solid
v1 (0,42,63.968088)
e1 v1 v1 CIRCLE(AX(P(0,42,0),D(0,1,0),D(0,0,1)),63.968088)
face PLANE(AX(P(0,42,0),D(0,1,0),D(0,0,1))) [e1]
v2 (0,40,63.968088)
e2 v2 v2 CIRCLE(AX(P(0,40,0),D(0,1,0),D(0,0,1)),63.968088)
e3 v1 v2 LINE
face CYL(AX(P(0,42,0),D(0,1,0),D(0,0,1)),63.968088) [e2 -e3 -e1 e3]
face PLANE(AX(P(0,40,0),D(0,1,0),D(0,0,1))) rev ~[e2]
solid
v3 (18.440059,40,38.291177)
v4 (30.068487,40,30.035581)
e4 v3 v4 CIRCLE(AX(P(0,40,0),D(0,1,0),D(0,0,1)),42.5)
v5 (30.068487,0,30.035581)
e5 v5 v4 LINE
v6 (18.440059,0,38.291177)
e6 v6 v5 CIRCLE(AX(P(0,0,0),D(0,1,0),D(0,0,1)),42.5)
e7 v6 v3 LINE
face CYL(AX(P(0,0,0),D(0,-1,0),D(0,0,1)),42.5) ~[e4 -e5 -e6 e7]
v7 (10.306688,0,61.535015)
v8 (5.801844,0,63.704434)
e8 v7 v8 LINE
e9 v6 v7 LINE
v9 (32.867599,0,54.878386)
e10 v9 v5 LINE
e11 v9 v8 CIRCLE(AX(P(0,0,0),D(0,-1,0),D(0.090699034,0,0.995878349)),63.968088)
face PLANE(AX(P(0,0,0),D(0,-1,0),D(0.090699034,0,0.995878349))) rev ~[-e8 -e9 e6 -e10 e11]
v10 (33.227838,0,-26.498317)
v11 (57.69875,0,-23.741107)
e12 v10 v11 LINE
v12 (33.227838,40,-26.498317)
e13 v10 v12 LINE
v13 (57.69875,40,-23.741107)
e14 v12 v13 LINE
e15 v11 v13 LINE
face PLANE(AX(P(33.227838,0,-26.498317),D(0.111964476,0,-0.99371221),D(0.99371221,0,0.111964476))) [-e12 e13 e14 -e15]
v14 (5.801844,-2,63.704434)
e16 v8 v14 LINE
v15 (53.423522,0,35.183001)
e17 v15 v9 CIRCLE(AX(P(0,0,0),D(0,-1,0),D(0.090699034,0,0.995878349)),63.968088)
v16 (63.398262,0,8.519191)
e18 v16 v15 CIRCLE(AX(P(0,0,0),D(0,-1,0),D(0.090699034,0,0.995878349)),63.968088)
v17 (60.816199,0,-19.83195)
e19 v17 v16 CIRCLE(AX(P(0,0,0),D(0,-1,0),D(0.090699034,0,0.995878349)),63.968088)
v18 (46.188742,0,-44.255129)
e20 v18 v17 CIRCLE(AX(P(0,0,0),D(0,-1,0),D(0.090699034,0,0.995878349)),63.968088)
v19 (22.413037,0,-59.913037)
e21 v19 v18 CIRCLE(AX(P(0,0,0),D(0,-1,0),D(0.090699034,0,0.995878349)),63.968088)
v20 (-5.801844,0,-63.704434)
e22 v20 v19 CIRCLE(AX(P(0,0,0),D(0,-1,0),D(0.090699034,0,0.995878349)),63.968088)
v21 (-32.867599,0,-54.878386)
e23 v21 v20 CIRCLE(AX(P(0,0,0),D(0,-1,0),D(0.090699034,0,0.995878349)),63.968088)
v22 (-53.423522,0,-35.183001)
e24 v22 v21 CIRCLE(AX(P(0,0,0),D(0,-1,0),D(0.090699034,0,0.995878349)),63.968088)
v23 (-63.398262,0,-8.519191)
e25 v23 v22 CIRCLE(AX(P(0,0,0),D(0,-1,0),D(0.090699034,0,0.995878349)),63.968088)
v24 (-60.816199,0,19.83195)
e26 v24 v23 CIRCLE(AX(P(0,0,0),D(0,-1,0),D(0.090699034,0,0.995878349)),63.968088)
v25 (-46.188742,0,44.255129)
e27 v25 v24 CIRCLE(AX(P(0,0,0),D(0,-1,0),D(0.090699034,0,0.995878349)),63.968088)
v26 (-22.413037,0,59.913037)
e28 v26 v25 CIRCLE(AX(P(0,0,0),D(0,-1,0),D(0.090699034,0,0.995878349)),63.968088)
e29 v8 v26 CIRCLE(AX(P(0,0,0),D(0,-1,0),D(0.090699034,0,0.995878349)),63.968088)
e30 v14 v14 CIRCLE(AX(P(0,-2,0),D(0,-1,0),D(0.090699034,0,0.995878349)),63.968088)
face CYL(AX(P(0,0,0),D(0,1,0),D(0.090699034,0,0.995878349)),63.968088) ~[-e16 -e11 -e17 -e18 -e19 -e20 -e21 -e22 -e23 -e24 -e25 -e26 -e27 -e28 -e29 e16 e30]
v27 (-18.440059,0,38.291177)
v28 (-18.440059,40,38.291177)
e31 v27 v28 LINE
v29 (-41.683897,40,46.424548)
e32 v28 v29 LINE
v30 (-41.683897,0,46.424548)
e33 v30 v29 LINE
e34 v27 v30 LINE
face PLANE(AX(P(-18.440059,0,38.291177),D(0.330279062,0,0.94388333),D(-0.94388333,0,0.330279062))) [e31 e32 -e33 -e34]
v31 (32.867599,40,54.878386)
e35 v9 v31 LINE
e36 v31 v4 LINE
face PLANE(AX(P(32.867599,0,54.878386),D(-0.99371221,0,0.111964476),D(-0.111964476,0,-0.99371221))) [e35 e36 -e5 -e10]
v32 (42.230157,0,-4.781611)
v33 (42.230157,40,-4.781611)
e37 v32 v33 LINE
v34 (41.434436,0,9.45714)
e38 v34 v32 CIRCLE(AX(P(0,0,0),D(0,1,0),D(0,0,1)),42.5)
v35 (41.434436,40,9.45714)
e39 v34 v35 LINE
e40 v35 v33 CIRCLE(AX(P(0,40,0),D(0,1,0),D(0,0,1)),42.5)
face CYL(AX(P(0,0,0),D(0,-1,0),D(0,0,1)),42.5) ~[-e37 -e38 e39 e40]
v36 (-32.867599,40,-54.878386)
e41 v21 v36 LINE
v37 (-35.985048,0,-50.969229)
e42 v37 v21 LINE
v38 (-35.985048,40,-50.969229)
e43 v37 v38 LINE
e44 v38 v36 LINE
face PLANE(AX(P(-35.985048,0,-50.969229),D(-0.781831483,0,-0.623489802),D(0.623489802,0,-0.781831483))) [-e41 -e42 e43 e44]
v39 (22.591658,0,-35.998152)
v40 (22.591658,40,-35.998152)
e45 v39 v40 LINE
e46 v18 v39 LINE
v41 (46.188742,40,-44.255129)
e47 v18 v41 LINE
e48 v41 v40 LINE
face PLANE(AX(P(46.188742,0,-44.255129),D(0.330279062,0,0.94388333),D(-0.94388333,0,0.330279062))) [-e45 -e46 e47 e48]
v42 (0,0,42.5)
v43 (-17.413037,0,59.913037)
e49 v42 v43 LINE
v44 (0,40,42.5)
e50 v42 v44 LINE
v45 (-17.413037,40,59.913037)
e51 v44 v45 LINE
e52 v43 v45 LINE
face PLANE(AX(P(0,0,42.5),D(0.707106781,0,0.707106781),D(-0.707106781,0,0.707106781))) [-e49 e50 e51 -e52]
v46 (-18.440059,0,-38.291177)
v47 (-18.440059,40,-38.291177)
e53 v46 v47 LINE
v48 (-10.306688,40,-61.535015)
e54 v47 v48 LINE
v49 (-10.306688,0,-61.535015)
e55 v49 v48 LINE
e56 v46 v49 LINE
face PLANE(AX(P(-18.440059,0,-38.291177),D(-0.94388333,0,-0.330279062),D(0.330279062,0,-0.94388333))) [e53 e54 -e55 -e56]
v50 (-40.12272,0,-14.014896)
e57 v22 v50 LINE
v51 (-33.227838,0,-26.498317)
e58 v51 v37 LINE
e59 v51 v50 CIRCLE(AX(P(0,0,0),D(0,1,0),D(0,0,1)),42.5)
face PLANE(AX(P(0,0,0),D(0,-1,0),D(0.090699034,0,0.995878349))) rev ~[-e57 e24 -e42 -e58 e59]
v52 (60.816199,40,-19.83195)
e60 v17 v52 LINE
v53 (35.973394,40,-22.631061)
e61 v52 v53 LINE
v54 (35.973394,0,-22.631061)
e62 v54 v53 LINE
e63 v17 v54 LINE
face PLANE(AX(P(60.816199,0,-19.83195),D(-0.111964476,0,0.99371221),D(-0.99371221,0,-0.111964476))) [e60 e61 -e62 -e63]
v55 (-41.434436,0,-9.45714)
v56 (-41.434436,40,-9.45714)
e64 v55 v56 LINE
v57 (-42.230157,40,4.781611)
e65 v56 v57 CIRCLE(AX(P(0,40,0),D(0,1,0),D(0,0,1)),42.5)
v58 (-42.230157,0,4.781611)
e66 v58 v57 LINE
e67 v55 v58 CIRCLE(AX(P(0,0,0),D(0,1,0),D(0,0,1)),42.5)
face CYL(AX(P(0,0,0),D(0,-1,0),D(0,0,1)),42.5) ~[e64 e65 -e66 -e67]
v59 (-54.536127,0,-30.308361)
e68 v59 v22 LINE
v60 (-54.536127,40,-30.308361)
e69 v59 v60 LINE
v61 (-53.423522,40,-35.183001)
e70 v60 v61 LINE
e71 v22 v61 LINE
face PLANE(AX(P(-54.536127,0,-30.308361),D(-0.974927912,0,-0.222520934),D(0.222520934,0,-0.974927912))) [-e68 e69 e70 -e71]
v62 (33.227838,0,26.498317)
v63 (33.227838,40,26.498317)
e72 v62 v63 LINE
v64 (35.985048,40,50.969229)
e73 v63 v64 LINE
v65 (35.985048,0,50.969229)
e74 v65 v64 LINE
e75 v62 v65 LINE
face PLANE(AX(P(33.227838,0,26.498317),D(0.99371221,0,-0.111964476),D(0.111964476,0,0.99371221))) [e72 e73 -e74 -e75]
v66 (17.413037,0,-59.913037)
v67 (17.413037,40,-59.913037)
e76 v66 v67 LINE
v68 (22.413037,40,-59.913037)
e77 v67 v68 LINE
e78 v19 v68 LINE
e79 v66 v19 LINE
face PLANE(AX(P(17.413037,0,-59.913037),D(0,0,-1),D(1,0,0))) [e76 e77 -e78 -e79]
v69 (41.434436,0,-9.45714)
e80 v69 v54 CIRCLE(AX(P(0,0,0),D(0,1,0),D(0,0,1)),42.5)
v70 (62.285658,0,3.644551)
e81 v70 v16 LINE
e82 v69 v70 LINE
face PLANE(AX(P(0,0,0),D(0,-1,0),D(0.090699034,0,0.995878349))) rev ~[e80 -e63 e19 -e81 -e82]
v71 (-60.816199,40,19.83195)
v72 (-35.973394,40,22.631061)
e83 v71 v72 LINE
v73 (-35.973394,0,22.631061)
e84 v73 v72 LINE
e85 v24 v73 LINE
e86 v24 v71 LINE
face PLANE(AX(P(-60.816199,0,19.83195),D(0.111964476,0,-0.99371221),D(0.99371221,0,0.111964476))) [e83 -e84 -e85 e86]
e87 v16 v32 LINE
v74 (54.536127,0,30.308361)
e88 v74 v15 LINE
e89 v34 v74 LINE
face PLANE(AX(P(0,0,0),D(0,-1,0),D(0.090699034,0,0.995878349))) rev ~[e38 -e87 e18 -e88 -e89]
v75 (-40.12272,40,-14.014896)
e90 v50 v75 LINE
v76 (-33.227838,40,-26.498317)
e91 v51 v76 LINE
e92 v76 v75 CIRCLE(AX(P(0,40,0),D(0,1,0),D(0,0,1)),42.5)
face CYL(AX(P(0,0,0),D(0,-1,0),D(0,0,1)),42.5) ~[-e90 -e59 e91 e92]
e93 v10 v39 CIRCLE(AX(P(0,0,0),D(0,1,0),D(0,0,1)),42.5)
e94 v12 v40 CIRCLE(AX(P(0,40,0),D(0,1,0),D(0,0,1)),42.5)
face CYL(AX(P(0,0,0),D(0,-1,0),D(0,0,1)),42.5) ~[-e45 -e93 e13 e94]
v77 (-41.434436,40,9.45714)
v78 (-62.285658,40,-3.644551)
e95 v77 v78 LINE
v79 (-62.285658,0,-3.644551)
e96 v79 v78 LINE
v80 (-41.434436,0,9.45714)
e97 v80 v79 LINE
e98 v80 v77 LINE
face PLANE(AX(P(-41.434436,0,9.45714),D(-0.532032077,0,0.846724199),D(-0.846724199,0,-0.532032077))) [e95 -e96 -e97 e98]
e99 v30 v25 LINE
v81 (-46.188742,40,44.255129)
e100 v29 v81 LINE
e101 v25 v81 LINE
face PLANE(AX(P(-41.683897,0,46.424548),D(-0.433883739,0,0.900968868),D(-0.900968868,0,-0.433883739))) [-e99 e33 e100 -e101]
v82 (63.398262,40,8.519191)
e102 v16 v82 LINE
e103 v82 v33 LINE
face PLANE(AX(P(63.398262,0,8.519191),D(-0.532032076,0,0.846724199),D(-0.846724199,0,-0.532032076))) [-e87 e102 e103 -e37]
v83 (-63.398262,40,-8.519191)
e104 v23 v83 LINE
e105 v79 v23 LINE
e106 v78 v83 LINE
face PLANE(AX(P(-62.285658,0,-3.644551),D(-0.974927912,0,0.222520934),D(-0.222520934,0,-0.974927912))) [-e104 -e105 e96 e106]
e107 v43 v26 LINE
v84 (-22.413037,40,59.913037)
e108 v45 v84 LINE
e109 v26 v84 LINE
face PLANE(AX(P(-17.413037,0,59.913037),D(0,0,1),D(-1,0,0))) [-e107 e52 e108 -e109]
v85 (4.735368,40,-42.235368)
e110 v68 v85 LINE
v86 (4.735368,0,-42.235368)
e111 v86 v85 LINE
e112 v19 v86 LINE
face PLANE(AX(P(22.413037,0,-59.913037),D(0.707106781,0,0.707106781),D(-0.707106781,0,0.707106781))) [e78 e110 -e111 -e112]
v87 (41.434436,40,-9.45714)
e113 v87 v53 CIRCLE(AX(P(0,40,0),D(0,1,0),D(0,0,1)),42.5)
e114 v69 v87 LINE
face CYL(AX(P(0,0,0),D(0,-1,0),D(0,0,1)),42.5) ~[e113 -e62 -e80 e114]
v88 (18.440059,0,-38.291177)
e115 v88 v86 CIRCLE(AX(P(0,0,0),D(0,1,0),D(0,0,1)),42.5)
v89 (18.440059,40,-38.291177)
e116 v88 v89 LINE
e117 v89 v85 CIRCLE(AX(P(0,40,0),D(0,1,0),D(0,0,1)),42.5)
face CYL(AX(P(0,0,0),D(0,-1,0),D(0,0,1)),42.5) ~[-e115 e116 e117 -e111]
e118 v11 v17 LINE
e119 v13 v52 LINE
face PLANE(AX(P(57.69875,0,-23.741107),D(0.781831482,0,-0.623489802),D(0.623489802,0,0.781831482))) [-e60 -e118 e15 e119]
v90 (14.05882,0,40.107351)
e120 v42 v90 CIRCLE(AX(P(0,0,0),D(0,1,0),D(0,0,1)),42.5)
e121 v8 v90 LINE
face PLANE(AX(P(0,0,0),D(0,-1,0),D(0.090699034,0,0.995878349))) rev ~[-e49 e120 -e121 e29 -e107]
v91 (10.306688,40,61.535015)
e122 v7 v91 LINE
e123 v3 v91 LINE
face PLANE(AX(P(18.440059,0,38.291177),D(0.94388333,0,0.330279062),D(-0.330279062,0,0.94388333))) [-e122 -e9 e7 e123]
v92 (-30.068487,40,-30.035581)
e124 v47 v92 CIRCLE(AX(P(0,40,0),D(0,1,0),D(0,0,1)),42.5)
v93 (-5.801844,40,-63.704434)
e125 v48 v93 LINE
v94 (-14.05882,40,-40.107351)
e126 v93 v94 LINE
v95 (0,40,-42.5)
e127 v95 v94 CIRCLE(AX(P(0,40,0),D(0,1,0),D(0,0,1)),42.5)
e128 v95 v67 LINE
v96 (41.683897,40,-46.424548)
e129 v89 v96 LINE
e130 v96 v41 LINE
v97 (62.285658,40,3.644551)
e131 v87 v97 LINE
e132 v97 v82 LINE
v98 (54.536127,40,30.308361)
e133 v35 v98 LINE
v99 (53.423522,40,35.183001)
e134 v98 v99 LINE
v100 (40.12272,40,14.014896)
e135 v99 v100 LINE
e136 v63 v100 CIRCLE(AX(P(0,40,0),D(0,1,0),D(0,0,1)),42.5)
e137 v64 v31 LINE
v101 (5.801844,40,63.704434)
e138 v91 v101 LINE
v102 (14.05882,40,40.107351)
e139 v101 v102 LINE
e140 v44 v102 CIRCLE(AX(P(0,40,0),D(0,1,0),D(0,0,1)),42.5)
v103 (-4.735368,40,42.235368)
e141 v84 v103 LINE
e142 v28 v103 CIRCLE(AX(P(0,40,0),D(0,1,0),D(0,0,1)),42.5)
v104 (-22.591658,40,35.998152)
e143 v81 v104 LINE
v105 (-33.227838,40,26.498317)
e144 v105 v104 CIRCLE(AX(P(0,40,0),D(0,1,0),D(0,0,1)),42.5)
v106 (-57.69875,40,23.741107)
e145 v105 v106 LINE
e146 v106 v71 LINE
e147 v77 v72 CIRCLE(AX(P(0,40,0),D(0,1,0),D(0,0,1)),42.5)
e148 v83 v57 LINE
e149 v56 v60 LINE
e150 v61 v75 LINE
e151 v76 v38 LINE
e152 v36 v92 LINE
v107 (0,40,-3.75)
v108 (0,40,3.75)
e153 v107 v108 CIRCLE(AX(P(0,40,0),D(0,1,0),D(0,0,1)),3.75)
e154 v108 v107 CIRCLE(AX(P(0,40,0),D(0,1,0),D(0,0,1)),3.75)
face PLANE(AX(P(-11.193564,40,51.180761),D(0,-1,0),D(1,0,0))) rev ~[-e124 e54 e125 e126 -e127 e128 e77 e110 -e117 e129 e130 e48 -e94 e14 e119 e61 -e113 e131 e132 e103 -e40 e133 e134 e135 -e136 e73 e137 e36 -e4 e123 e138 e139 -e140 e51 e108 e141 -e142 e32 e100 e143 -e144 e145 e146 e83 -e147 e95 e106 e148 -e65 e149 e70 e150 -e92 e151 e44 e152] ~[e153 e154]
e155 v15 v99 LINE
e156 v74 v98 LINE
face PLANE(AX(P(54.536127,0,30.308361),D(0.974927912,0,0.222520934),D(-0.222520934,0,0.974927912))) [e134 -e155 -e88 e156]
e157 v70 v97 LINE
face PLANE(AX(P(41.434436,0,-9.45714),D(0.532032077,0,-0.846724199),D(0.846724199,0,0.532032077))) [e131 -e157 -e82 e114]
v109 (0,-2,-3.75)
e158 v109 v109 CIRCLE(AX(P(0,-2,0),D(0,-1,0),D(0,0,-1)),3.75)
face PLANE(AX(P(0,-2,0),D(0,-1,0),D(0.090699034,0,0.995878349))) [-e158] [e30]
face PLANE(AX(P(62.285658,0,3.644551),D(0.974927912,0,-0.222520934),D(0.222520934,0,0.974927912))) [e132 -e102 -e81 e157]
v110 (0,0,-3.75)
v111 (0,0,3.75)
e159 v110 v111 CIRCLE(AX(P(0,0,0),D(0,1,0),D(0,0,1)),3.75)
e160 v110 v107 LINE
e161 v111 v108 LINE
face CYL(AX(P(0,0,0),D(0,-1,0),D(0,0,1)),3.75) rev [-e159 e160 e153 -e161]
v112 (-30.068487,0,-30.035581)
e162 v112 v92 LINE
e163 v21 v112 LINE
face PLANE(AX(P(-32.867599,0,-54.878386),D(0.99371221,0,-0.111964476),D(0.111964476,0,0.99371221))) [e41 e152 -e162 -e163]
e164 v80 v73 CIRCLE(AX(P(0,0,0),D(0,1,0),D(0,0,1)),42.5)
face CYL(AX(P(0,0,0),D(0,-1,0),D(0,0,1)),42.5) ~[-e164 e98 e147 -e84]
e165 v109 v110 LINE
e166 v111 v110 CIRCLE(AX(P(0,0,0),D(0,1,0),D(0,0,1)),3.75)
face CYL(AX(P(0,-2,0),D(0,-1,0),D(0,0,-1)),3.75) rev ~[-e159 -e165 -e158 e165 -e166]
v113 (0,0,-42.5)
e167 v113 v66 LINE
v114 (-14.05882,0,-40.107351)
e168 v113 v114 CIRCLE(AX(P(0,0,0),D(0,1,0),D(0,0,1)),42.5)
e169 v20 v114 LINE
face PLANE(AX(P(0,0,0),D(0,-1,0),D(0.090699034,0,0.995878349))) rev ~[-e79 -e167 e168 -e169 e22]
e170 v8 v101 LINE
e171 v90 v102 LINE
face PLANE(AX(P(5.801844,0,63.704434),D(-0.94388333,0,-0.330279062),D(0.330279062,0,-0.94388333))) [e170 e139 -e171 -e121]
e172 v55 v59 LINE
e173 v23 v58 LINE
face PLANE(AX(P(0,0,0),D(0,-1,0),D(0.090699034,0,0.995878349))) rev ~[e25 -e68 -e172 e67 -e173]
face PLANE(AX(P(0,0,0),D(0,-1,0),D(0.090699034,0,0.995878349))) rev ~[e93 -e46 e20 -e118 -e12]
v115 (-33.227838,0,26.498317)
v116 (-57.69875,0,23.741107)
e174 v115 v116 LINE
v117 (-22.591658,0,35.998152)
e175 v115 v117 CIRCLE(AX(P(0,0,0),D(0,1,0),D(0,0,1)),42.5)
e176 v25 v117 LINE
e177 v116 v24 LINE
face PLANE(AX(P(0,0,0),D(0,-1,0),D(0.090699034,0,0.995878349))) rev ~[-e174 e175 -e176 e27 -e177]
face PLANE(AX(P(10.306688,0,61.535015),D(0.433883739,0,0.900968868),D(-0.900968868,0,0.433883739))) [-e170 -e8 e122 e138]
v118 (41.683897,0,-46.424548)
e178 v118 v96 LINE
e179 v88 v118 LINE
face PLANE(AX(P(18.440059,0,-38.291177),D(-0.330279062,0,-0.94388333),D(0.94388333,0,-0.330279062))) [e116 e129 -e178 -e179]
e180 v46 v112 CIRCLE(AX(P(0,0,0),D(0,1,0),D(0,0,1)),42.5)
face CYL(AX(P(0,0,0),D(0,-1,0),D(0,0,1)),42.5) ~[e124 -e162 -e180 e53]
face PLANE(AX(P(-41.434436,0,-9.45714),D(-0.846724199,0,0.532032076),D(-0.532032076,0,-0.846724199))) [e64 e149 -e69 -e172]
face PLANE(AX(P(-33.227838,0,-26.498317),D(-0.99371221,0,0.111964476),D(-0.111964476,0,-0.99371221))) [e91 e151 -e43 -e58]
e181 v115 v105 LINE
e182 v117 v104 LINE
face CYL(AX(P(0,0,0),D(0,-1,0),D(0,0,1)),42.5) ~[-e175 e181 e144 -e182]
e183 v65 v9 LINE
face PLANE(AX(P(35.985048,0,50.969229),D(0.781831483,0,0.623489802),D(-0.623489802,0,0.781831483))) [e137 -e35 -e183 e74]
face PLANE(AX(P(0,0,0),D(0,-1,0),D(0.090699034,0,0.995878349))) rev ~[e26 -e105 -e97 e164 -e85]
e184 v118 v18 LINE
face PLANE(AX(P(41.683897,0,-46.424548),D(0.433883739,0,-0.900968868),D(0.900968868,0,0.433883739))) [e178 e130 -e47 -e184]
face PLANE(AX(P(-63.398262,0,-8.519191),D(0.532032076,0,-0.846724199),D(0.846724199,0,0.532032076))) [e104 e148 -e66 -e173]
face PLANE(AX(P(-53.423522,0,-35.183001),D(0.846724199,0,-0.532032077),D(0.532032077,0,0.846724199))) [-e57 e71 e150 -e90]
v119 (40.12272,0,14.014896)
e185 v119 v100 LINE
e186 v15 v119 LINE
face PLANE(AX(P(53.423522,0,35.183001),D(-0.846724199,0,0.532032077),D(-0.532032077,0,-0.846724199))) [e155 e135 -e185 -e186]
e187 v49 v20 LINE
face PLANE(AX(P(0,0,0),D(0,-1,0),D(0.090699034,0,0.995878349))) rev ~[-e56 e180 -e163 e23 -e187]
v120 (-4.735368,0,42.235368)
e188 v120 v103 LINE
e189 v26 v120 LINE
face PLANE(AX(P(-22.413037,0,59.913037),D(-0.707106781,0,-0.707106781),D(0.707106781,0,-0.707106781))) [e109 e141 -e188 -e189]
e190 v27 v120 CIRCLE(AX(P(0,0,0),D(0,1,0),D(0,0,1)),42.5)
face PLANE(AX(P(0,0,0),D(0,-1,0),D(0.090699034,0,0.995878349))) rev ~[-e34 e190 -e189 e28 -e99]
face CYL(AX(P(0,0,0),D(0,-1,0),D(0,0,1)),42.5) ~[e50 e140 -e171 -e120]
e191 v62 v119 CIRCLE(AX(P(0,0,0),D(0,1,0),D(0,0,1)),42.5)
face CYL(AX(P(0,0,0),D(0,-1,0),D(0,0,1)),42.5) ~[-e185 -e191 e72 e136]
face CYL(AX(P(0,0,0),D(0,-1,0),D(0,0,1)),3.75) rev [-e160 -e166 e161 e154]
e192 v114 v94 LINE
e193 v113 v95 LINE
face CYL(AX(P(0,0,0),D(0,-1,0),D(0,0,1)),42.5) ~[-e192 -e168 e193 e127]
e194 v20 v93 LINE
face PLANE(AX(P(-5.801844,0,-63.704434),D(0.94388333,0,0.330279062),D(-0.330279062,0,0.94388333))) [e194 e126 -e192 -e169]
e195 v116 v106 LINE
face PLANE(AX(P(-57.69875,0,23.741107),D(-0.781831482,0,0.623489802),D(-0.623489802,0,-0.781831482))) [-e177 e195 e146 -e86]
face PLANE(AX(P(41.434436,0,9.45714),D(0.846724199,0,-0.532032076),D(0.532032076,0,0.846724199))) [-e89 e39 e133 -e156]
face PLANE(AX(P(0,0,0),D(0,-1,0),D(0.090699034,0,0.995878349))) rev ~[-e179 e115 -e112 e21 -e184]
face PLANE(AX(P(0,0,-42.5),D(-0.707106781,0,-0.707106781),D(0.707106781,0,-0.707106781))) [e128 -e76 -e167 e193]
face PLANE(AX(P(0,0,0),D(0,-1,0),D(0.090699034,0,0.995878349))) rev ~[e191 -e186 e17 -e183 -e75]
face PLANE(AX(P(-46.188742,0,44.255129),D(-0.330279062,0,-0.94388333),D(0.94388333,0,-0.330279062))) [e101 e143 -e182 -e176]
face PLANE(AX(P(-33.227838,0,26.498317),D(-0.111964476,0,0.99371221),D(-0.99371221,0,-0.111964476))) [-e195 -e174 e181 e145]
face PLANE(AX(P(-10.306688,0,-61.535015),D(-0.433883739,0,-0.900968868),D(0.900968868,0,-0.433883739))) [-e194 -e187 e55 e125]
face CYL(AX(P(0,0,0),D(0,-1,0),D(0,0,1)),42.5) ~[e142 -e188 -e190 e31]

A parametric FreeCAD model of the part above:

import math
import FreeCAD as App
import Part
import Sketcher
from FreeCAD import Vector

doc = App.newDocument("Part")
body = doc.addObject("PartDesign::Body", "Body")

# Sketch on XZ plane
sketch1 = body.newObject("Sketcher::SketchObject", "Sketch")
sketch1.AttachmentSupport = (doc.getObject("XZ_Plane"), [""])
sketch1.MapMode = "FlatFace"
sketch1.addGeometry(Part.Circle(Vector(0, 0, 0), Vector(0, 0, 1), 42.5), False)
sketch1.addGeometry(Part.Circle(Vector(0, 0, 0), Vector(0, 0, 1), 3.8), False)
sketch1.addConstraint(Sketcher.Constraint("Coincident", 0, 3, -1, 1))
sketch1.addConstraint(Sketcher.Constraint("Coincident", 1, 3, -1, 1))
sketch1.addConstraint(Sketcher.Constraint("Diameter", 0, 85.0))
sketch1.addConstraint(Sketcher.Constraint("Diameter", 1, 7.5))
pad1 = body.newObject("PartDesign::Pad", "Pad")
pad1.Profile = sketch1
pad1.Length = 40
pad1.Reversed = True

# Sketch on XZ plane
sketch2 = body.newObject("Sketcher::SketchObject", "Sketch001")
sketch2.AttachmentSupport = (doc.getObject("XZ_Plane"), [""])
sketch2.MapMode = "FlatFace"
sketch2.addGeometry(Part.LineSegment(Vector(0, -42.5, 0), Vector(17.413037, -59.913037, 0)), False)
sketch2.addGeometry(Part.LineSegment(Vector(17.413037, -59.913037, 0), Vector(22.413037, -59.913037, 0)), False)
sketch2.addGeometry(Part.LineSegment(Vector(22.413037, -59.913037, 0), Vector(4.735368, -42.235368, 0)), False)
sketch2.addGeometry(Part.ArcOfCircle(Part.Circle(Vector(0, 0, 0), Vector(0, 0, 1), 42.5), math.radians(-90), math.radians(-83.602797)), False)
sketch2.addGeometry(Part.LineSegment(Vector(-18.440059, -38.291177, 0), Vector(-10.306688, -61.535015, 0)), False)
sketch2.addGeometry(Part.LineSegment(Vector(-10.306688, -61.535015, 0), Vector(-5.801844, -63.704434, 0)), False)
sketch2.addGeometry(Part.LineSegment(Vector(-5.801844, -63.704434, 0), Vector(-14.05882, -40.107351, 0)), False)
sketch2.addGeometry(Part.ArcOfCircle(Part.Circle(Vector(0, 0, 0), Vector(0, 0, 1), 42.5), math.radians(-115.714286), math.radians(-109.317083)), False)
sketch2.addGeometry(Part.LineSegment(Vector(-33.227838, -26.498317, 0), Vector(-35.985048, -50.969229, 0)), False)
sketch2.addGeometry(Part.LineSegment(Vector(-35.985048, -50.969229, 0), Vector(-32.867599, -54.878386, 0)), False)
sketch2.addGeometry(Part.LineSegment(Vector(-32.867599, -54.878386, 0), Vector(-30.068487, -30.035581, 0)), False)
sketch2.addGeometry(Part.ArcOfCircle(Part.Circle(Vector(0, 0, 0), Vector(0, 0, 1), 42.5), math.radians(-141.428571), math.radians(-135.031369)), False)
sketch2.addGeometry(Part.LineSegment(Vector(-41.434436, -9.45714, 0), Vector(-54.536127, -30.308361, 0)), False)
sketch2.addGeometry(Part.LineSegment(Vector(-54.536127, -30.308361, 0), Vector(-53.423522, -35.183001, 0)), False)
sketch2.addGeometry(Part.LineSegment(Vector(-53.423522, -35.183001, 0), Vector(-40.12272, -14.014896, 0)), False)
sketch2.addGeometry(Part.ArcOfCircle(Part.Circle(Vector(0, 0, 0), Vector(0, 0, 1), 42.5), math.radians(-167.142857), math.radians(-160.745654)), False)
sketch2.addGeometry(Part.LineSegment(Vector(-41.434436, 9.45714, 0), Vector(-62.285658, -3.644551, 0)), False)
sketch2.addGeometry(Part.LineSegment(Vector(-62.285658, -3.644551, 0), Vector(-63.398262, -8.519191, 0)), False)
sketch2.addGeometry(Part.LineSegment(Vector(-63.398262, -8.519191, 0), Vector(-42.230157, 4.781611, 0)), False)
sketch2.addGeometry(Part.ArcOfCircle(Part.Circle(Vector(0, 0, 0), Vector(0, 0, 1), 42.5), math.radians(167.142857), math.radians(173.54006)), False)
sketch2.addGeometry(Part.LineSegment(Vector(-33.227838, 26.498317, 0), Vector(-57.69875, 23.741107, 0)), False)
sketch2.addGeometry(Part.LineSegment(Vector(-57.69875, 23.741107, 0), Vector(-60.816199, 19.83195, 0)), False)
sketch2.addGeometry(Part.LineSegment(Vector(-60.816199, 19.83195, 0), Vector(-35.973394, 22.631061, 0)), False)
sketch2.addGeometry(Part.ArcOfCircle(Part.Circle(Vector(0, 0, 0), Vector(0, 0, 1), 42.5), math.radians(141.428571), math.radians(147.825774)), False)
sketch2.addGeometry(Part.LineSegment(Vector(-18.440059, 38.291177, 0), Vector(-41.683897, 46.424548, 0)), False)
sketch2.addGeometry(Part.LineSegment(Vector(-41.683897, 46.424548, 0), Vector(-46.188742, 44.255129, 0)), False)
sketch2.addGeometry(Part.LineSegment(Vector(-46.188742, 44.255129, 0), Vector(-22.591658, 35.998152, 0)), False)
sketch2.addGeometry(Part.ArcOfCircle(Part.Circle(Vector(0, 0, 0), Vector(0, 0, 1), 42.5), math.radians(115.714286), math.radians(122.111489)), False)
sketch2.addGeometry(Part.LineSegment(Vector(0, 42.5, 0), Vector(-17.413037, 59.913037, 0)), False)
sketch2.addGeometry(Part.LineSegment(Vector(-17.413037, 59.913037, 0), Vector(-22.413037, 59.913037, 0)), False)
sketch2.addGeometry(Part.LineSegment(Vector(-22.413037, 59.913037, 0), Vector(-4.735368, 42.235368, 0)), False)
sketch2.addGeometry(Part.ArcOfCircle(Part.Circle(Vector(0, 0, 0), Vector(0, 0, 1), 42.5), math.radians(90), math.radians(96.397203)), False)
sketch2.addGeometry(Part.LineSegment(Vector(18.440059, 38.291177, 0), Vector(10.306688, 61.535015, 0)), False)
sketch2.addGeometry(Part.LineSegment(Vector(10.306688, 61.535015, 0), Vector(5.801844, 63.704434, 0)), False)
sketch2.addGeometry(Part.LineSegment(Vector(5.801844, 63.704434, 0), Vector(14.05882, 40.107351, 0)), False)
sketch2.addGeometry(Part.ArcOfCircle(Part.Circle(Vector(0, 0, 0), Vector(0, 0, 1), 42.5), math.radians(64.285714), math.radians(70.682917)), False)
sketch2.addGeometry(Part.LineSegment(Vector(33.227838, 26.498317, 0), Vector(35.985048, 50.969229, 0)), False)
sketch2.addGeometry(Part.LineSegment(Vector(35.985048, 50.969229, 0), Vector(32.867599, 54.878386, 0)), False)
sketch2.addGeometry(Part.LineSegment(Vector(32.867599, 54.878386, 0), Vector(30.068487, 30.035581, 0)), False)
sketch2.addGeometry(Part.ArcOfCircle(Part.Circle(Vector(0, 0, 0), Vector(0, 0, 1), 42.5), math.radians(38.571429), math.radians(44.968631)), False)
sketch2.addGeometry(Part.LineSegment(Vector(41.434436, 9.45714, 0), Vector(54.536127, 30.308361, 0)), False)
sketch2.addGeometry(Part.LineSegment(Vector(54.536127, 30.308361, 0), Vector(53.423522, 35.183001, 0)), False)
sketch2.addGeometry(Part.LineSegment(Vector(53.423522, 35.183001, 0), Vector(40.12272, 14.014896, 0)), False)
sketch2.addGeometry(Part.ArcOfCircle(Part.Circle(Vector(0, 0, 0), Vector(0, 0, 1), 42.5), math.radians(12.857143), math.radians(19.254346)), False)
sketch2.addGeometry(Part.LineSegment(Vector(41.434436, -9.45714, 0), Vector(62.285658, 3.644551, 0)), False)
sketch2.addGeometry(Part.LineSegment(Vector(62.285658, 3.644551, 0), Vector(63.398262, 8.519191, 0)), False)
sketch2.addGeometry(Part.LineSegment(Vector(63.398262, 8.519191, 0), Vector(42.230157, -4.781611, 0)), False)
sketch2.addGeometry(Part.ArcOfCircle(Part.Circle(Vector(0, 0, 0), Vector(0, 0, 1), 42.5), math.radians(-12.857143), math.radians(-6.45994)), False)
sketch2.addGeometry(Part.LineSegment(Vector(33.227838, -26.498317, 0), Vector(57.69875, -23.741107, 0)), False)
sketch2.addGeometry(Part.LineSegment(Vector(57.69875, -23.741107, 0), Vector(60.816199, -19.83195, 0)), False)
sketch2.addGeometry(Part.LineSegment(Vector(60.816199, -19.83195, 0), Vector(35.973394, -22.631061, 0)), False)
sketch2.addGeometry(Part.ArcOfCircle(Part.Circle(Vector(0, 0, 0), Vector(0, 0, 1), 42.5), math.radians(-38.571429), math.radians(-32.174226)), False)
sketch2.addGeometry(Part.LineSegment(Vector(18.440059, -38.291177, 0), Vector(41.683897, -46.424548, 0)), False)
sketch2.addGeometry(Part.LineSegment(Vector(41.683897, -46.424548, 0), Vector(46.188742, -44.255129, 0)), False)
sketch2.addGeometry(Part.LineSegment(Vector(46.188742, -44.255129, 0), Vector(22.591658, -35.998152, 0)), False)
sketch2.addGeometry(Part.ArcOfCircle(Part.Circle(Vector(0, 0, 0), Vector(0, 0, 1), 42.5), math.radians(-64.285714), math.radians(-57.888511)), False)
sketch2.addConstraint(Sketcher.Constraint("Coincident", 0, 2, 1, 1))
sketch2.addConstraint(Sketcher.Constraint("Coincident", 1, 2, 2, 1))
sketch2.addConstraint(Sketcher.Constraint("Coincident", 2, 2, 3, 2))
sketch2.addConstraint(Sketcher.Constraint("Coincident", 3, 1, 0, 1))
sketch2.addConstraint(Sketcher.Constraint("Coincident", 4, 2, 5, 1))
sketch2.addConstraint(Sketcher.Constraint("Coincident", 5, 2, 6, 1))
sketch2.addConstraint(Sketcher.Constraint("Coincident", 6, 2, 7, 2))
sketch2.addConstraint(Sketcher.Constraint("Coincident", 7, 1, 4, 1))
sketch2.addConstraint(Sketcher.Constraint("Coincident", 8, 2, 9, 1))
sketch2.addConstraint(Sketcher.Constraint("Coincident", 9, 2, 10, 1))
sketch2.addConstraint(Sketcher.Constraint("Coincident", 10, 2, 11, 2))
sketch2.addConstraint(Sketcher.Constraint("Coincident", 11, 1, 8, 1))
sketch2.addConstraint(Sketcher.Constraint("Coincident", 12, 2, 13, 1))
sketch2.addConstraint(Sketcher.Constraint("Coincident", 13, 2, 14, 1))
sketch2.addConstraint(Sketcher.Constraint("Coincident", 14, 2, 15, 2))
sketch2.addConstraint(Sketcher.Constraint("Coincident", 15, 1, 12, 1))
sketch2.addConstraint(Sketcher.Constraint("Coincident", 16, 2, 17, 1))
sketch2.addConstraint(Sketcher.Constraint("Coincident", 17, 2, 18, 1))
sketch2.addConstraint(Sketcher.Constraint("Coincident", 18, 2, 19, 2))
sketch2.addConstraint(Sketcher.Constraint("Coincident", 19, 1, 16, 1))
sketch2.addConstraint(Sketcher.Constraint("Coincident", 20, 2, 21, 1))
sketch2.addConstraint(Sketcher.Constraint("Coincident", 21, 2, 22, 1))
sketch2.addConstraint(Sketcher.Constraint("Coincident", 22, 2, 23, 2))
sketch2.addConstraint(Sketcher.Constraint("Coincident", 23, 1, 20, 1))
sketch2.addConstraint(Sketcher.Constraint("Coincident", 24, 2, 25, 1))
sketch2.addConstraint(Sketcher.Constraint("Coincident", 25, 2, 26, 1))
sketch2.addConstraint(Sketcher.Constraint("Coincident", 26, 2, 27, 2))
sketch2.addConstraint(Sketcher.Constraint("Coincident", 27, 1, 24, 1))
sketch2.addConstraint(Sketcher.Constraint("Coincident", 28, 2, 29, 1))
sketch2.addConstraint(Sketcher.Constraint("Coincident", 29, 2, 30, 1))
sketch2.addConstraint(Sketcher.Constraint("Coincident", 30, 2, 31, 2))
sketch2.addConstraint(Sketcher.Constraint("Coincident", 31, 1, 28, 1))
sketch2.addConstraint(Sketcher.Constraint("Coincident", 32, 2, 33, 1))
sketch2.addConstraint(Sketcher.Constraint("Coincident", 33, 2, 34, 1))
sketch2.addConstraint(Sketcher.Constraint("Coincident", 34, 2, 35, 2))
sketch2.addConstraint(Sketcher.Constraint("Coincident", 35, 1, 32, 1))
sketch2.addConstraint(Sketcher.Constraint("Coincident", 36, 2, 37, 1))
sketch2.addConstraint(Sketcher.Constraint("Coincident", 37, 2, 38, 1))
sketch2.addConstraint(Sketcher.Constraint("Coincident", 38, 2, 39, 2))
sketch2.addConstraint(Sketcher.Constraint("Coincident", 39, 1, 36, 1))
sketch2.addConstraint(Sketcher.Constraint("Coincident", 40, 2, 41, 1))
sketch2.addConstraint(Sketcher.Constraint("Coincident", 41, 2, 42, 1))
sketch2.addConstraint(Sketcher.Constraint("Coincident", 42, 2, 43, 2))
sketch2.addConstraint(Sketcher.Constraint("Coincident", 43, 1, 40, 1))
sketch2.addConstraint(Sketcher.Constraint("Coincident", 44, 2, 45, 1))
sketch2.addConstraint(Sketcher.Constraint("Coincident", 45, 2, 46, 1))
sketch2.addConstraint(Sketcher.Constraint("Coincident", 46, 2, 47, 2))
sketch2.addConstraint(Sketcher.Constraint("Coincident", 47, 1, 44, 1))
sketch2.addConstraint(Sketcher.Constraint("Coincident", 48, 2, 49, 1))
sketch2.addConstraint(Sketcher.Constraint("Coincident", 49, 2, 50, 1))
sketch2.addConstraint(Sketcher.Constraint("Coincident", 50, 2, 51, 2))
sketch2.addConstraint(Sketcher.Constraint("Coincident", 51, 1, 48, 1))
sketch2.addConstraint(Sketcher.Constraint("Coincident", 52, 2, 53, 1))
sketch2.addConstraint(Sketcher.Constraint("Coincident", 53, 2, 54, 1))
sketch2.addConstraint(Sketcher.Constraint("Coincident", 54, 2, 55, 2))
sketch2.addConstraint(Sketcher.Constraint("Coincident", 55, 1, 52, 1))
sketch2.addConstraint(Sketcher.Constraint("Horizontal", 1))
sketch2.addConstraint(Sketcher.Constraint("Horizontal", 29))
sketch2.addConstraint(Sketcher.Constraint("Coincident", 3, 3, -1, 1))
sketch2.addConstraint(Sketcher.Constraint("Coincident", 7, 3, -1, 1))
sketch2.addConstraint(Sketcher.Constraint("Coincident", 11, 3, -1, 1))
sketch2.addConstraint(Sketcher.Constraint("Coincident", 15, 3, -1, 1))
sketch2.addConstraint(Sketcher.Constraint("Coincident", 19, 3, -1, 1))
sketch2.addConstraint(Sketcher.Constraint("Coincident", 23, 3, -1, 1))
sketch2.addConstraint(Sketcher.Constraint("Coincident", 27, 3, -1, 1))
sketch2.addConstraint(Sketcher.Constraint("Coincident", 31, 3, -1, 1))
sketch2.addConstraint(Sketcher.Constraint("Coincident", 35, 3, -1, 1))
sketch2.addConstraint(Sketcher.Constraint("Coincident", 39, 3, -1, 1))
sketch2.addConstraint(Sketcher.Constraint("Coincident", 43, 3, -1, 1))
sketch2.addConstraint(Sketcher.Constraint("Coincident", 47, 3, -1, 1))
sketch2.addConstraint(Sketcher.Constraint("Coincident", 51, 3, -1, 1))
sketch2.addConstraint(Sketcher.Constraint("Coincident", 55, 3, -1, 1))
sketch2.addConstraint(Sketcher.Constraint("PointOnObject", 3, 1, -2))
sketch2.addConstraint(Sketcher.Constraint("PointOnObject", 31, 1, -2))
sketch2.addConstraint(Sketcher.Constraint("Radius", 3, 42.5))
sketch2.addConstraint(Sketcher.Constraint("Radius", 7, 42.5))
sketch2.addConstraint(Sketcher.Constraint("Radius", 11, 42.5))
sketch2.addConstraint(Sketcher.Constraint("Radius", 15, 42.5))
sketch2.addConstraint(Sketcher.Constraint("Radius", 19, 42.5))
sketch2.addConstraint(Sketcher.Constraint("Radius", 23, 42.5))
sketch2.addConstraint(Sketcher.Constraint("Radius", 27, 42.5))
sketch2.addConstraint(Sketcher.Constraint("Radius", 31, 42.5))
sketch2.addConstraint(Sketcher.Constraint("Radius", 35, 42.5))
sketch2.addConstraint(Sketcher.Constraint("Radius", 39, 42.5))
sketch2.addConstraint(Sketcher.Constraint("Radius", 43, 42.5))
sketch2.addConstraint(Sketcher.Constraint("Radius", 47, 42.5))
sketch2.addConstraint(Sketcher.Constraint("Radius", 51, 42.5))
sketch2.addConstraint(Sketcher.Constraint("Radius", 55, 42.5))
sketch2.addConstraint(Sketcher.Constraint("DistanceX", 1, 1, 1, 2, 5.0))
sketch2.addConstraint(Sketcher.Constraint("DistanceX", 29, 2, 29, 1, 5.0))
sketch2.addConstraint(Sketcher.Constraint("Distance", 2, 25.0))
sketch2.addConstraint(Sketcher.Constraint("Distance", 5, 5.0))
sketch2.addConstraint(Sketcher.Constraint("Distance", 6, 25.0))
sketch2.addConstraint(Sketcher.Constraint("Distance", 9, 5.0))
sketch2.addConstraint(Sketcher.Constraint("Distance", 10, 25.0))
sketch2.addConstraint(Sketcher.Constraint("Distance", 13, 5.0))
sketch2.addConstraint(Sketcher.Constraint("Distance", 14, 25.0))
sketch2.addConstraint(Sketcher.Constraint("Distance", 17, 5.0))
sketch2.addConstraint(Sketcher.Constraint("Distance", 18, 25.0))
sketch2.addConstraint(Sketcher.Constraint("Distance", 21, 5.0))
sketch2.addConstraint(Sketcher.Constraint("Distance", 22, 25.0))
sketch2.addConstraint(Sketcher.Constraint("Distance", 25, 5.0))
sketch2.addConstraint(Sketcher.Constraint("Distance", 26, 25.0))
sketch2.addConstraint(Sketcher.Constraint("Distance", 30, 25.0))
sketch2.addConstraint(Sketcher.Constraint("Distance", 33, 5.0))
sketch2.addConstraint(Sketcher.Constraint("Distance", 34, 25.0))
sketch2.addConstraint(Sketcher.Constraint("Distance", 37, 5.0))
sketch2.addConstraint(Sketcher.Constraint("Distance", 38, 25.0))
sketch2.addConstraint(Sketcher.Constraint("Distance", 41, 5.0))
sketch2.addConstraint(Sketcher.Constraint("Distance", 42, 25.0))
sketch2.addConstraint(Sketcher.Constraint("Distance", 45, 5.0))
sketch2.addConstraint(Sketcher.Constraint("Distance", 46, 25.0))
sketch2.addConstraint(Sketcher.Constraint("Distance", 49, 5.0))
sketch2.addConstraint(Sketcher.Constraint("Distance", 50, 25.0))
sketch2.addConstraint(Sketcher.Constraint("Distance", 53, 5.0))
sketch2.addConstraint(Sketcher.Constraint("Distance", 54, 25.0))
sketch2.addConstraint(Sketcher.Constraint("DistanceY", 13, 2, -1, 1, 35.183001))
sketch2.addConstraint(Sketcher.Constraint("DistanceY", -1, 1, 41, 2, 35.183001))
sketch2.addConstraint(Sketcher.Constraint("DistanceX", 9, 2, -1, 1, 32.867599))
sketch2.addConstraint(Sketcher.Constraint("DistanceX", 21, 2, -1, 1, 60.816199))
sketch2.addConstraint(Sketcher.Constraint("DistanceX", -1, 1, 37, 2, 32.867599))
sketch2.addConstraint(Sketcher.Constraint("DistanceX", -1, 1, 49, 2, 60.816199))
sketch2.addConstraint(Sketcher.Constraint("DistanceX", 4, 2, -1, 1, 10.306688))
sketch2.addConstraint(Sketcher.Constraint("DistanceX", 6, 2, -1, 1, 14.05882))
sketch2.addConstraint(Sketcher.Constraint("DistanceX", 7, 1, -1, 1, 18.440059))
sketch2.addConstraint(Sketcher.Constraint("DistanceY", 8, 2, -1, 1, 50.969229))
sketch2.addConstraint(Sketcher.Constraint("DistanceY", 10, 2, -1, 1, 30.035581))
sketch2.addConstraint(Sketcher.Constraint("DistanceX", 11, 1, -1, 1, 33.227838))
sketch2.addConstraint(Sketcher.Constraint("DistanceY", 12, 2, -1, 1, 30.308361))
sketch2.addConstraint(Sketcher.Constraint("DistanceX", 14, 2, -1, 1, 40.12272))
sketch2.addConstraint(Sketcher.Constraint("DistanceY", 15, 1, -1, 1, 9.45714))
sketch2.addConstraint(Sketcher.Constraint("DistanceY", 16, 2, -1, 1, 3.644551))
sketch2.addConstraint(Sketcher.Constraint("DistanceY", 17, 2, -1, 1, 8.519191))
sketch2.addConstraint(Sketcher.Constraint("DistanceY", -1, 1, 18, 2, 4.781611))
sketch2.addConstraint(Sketcher.Constraint("DistanceY", -1, 1, 19, 1, 9.45714))
sketch2.addConstraint(Sketcher.Constraint("DistanceX", 20, 2, -1, 1, 57.69875))
sketch2.addConstraint(Sketcher.Constraint("DistanceY", -1, 1, 21, 2, 19.83195))
sketch2.addConstraint(Sketcher.Constraint("DistanceX", 23, 1, -1, 1, 33.227838))
sketch2.addConstraint(Sketcher.Constraint("DistanceX", 25, 2, -1, 1, 46.188742))
sketch2.addConstraint(Sketcher.Constraint("DistanceY", -1, 1, 25, 2, 44.255129))
sketch2.addConstraint(Sketcher.Constraint("DistanceX", 27, 1, -1, 1, 18.440059))
sketch2.addConstraint(Sketcher.Constraint("DistanceX", -1, 1, 32, 2, 10.306688))
sketch2.addConstraint(Sketcher.Constraint("DistanceX", -1, 1, 34, 2, 14.05882))
sketch2.addConstraint(Sketcher.Constraint("DistanceX", -1, 1, 35, 1, 18.440059))
sketch2.addConstraint(Sketcher.Constraint("DistanceY", -1, 1, 36, 2, 50.969229))
sketch2.addConstraint(Sketcher.Constraint("DistanceY", -1, 1, 38, 2, 30.035581))
sketch2.addConstraint(Sketcher.Constraint("DistanceX", -1, 1, 39, 1, 33.227838))
sketch2.addConstraint(Sketcher.Constraint("DistanceY", -1, 1, 40, 2, 30.308361))
sketch2.addConstraint(Sketcher.Constraint("DistanceX", -1, 1, 42, 2, 40.12272))
sketch2.addConstraint(Sketcher.Constraint("DistanceY", -1, 1, 43, 1, 9.45714))
sketch2.addConstraint(Sketcher.Constraint("DistanceY", -1, 1, 44, 2, 3.644551))
sketch2.addConstraint(Sketcher.Constraint("DistanceY", -1, 1, 45, 2, 8.519191))
sketch2.addConstraint(Sketcher.Constraint("DistanceY", 46, 2, -1, 1, 4.781611))
sketch2.addConstraint(Sketcher.Constraint("DistanceY", 47, 1, -1, 1, 9.45714))
sketch2.addConstraint(Sketcher.Constraint("DistanceX", -1, 1, 48, 2, 57.69875))
sketch2.addConstraint(Sketcher.Constraint("DistanceY", 49, 2, -1, 1, 19.83195))
sketch2.addConstraint(Sketcher.Constraint("DistanceX", -1, 1, 51, 1, 33.227838))
sketch2.addConstraint(Sketcher.Constraint("DistanceX", -1, 1, 53, 2, 46.188742))
sketch2.addConstraint(Sketcher.Constraint("DistanceY", 53, 2, -1, 1, 44.255129))
sketch2.addConstraint(Sketcher.Constraint("DistanceX", -1, 1, 55, 1, 18.440059))
sketch2.addConstraint(Sketcher.Constraint("Distance", 0, 24.625754))
sketch2.addConstraint(Sketcher.Constraint("Distance", 4, 24.625754))
sketch2.addConstraint(Sketcher.Constraint("Distance", 24, 24.625754))
sketch2.addConstraint(Sketcher.Constraint("Distance", 28, 24.625754))
sketch2.addConstraint(Sketcher.Constraint("Distance", 32, 24.625754))
sketch2.addConstraint(Sketcher.Constraint("Distance", 52, 24.625754))
sketch2.addConstraint(Sketcher.Constraint("DistanceX", -1, 1, 0, 2, 17.413037))
sketch2.addConstraint(Sketcher.Constraint("DistanceX", 28, 2, -1, 1, 17.413037))
pad2 = body.newObject("PartDesign::Pad", "Pad001")
pad2.Profile = sketch2
pad2.Length = 40
pad2.Reversed = True

# Sketch on XZ plane
sketch3 = body.newObject("Sketcher::SketchObject", "Sketch002")
sketch3.AttachmentSupport = (doc.getObject("XZ_Plane"), [""])
sketch3.MapMode = "FlatFace"
sketch3.addGeometry(Part.Circle(Vector(0, 0, 0), Vector(0, 0, 1), 64), False)
sketch3.addConstraint(Sketcher.Constraint("Coincident", 0, 3, -1, 1))
sketch3.addConstraint(Sketcher.Constraint("Diameter", 0, 127.936176))
pad3 = body.newObject("PartDesign::Pad", "Pad002")
pad3.Profile = sketch3
pad3.Length = 2

# Sketch on XZ plane
sketch4 = body.newObject("Sketcher::SketchObject", "Sketch003")
sketch4.AttachmentSupport = (doc.getObject("XZ_Plane"), [""])
sketch4.MapMode = "FlatFace"
sketch4.AttachmentOffset = App.Placement(Vector(0, 0, 2), App.Rotation())
sketch4.addGeometry(Part.Circle(Vector(0, 0, 0), Vector(0, 0, 1), 3.8), False)
sketch4.addConstraint(Sketcher.Constraint("Coincident", 0, 3, -1, 1))
sketch4.addConstraint(Sketcher.Constraint("Diameter", 0, 7.5))
pocket1 = body.newObject("PartDesign::Pocket", "Pocket")
pocket1.Profile = sketch4
pocket1.Length = 79
body2 = doc.addObject("PartDesign::Body", "Body001")

# Sketch on XZ plane
sketch5 = body2.newObject("Sketcher::SketchObject", "Sketch004")
sketch5.AttachmentSupport = (doc.getObject("XZ_Plane001"), [""])
sketch5.MapMode = "FlatFace"
sketch5.AttachmentOffset = App.Placement(Vector(0, 0, -42), App.Rotation())
sketch5.addGeometry(Part.Circle(Vector(0, 0, 0), Vector(0, 0, 1), 64), False)
sketch5.addConstraint(Sketcher.Constraint("Coincident", 0, 3, -1, 1))
sketch5.addConstraint(Sketcher.Constraint("Diameter", 0, 127.936176))
pad4 = body2.newObject("PartDesign::Pad", "Pad003")
pad4.Profile = sketch5
pad4.Length = 2

doc.recompute()
